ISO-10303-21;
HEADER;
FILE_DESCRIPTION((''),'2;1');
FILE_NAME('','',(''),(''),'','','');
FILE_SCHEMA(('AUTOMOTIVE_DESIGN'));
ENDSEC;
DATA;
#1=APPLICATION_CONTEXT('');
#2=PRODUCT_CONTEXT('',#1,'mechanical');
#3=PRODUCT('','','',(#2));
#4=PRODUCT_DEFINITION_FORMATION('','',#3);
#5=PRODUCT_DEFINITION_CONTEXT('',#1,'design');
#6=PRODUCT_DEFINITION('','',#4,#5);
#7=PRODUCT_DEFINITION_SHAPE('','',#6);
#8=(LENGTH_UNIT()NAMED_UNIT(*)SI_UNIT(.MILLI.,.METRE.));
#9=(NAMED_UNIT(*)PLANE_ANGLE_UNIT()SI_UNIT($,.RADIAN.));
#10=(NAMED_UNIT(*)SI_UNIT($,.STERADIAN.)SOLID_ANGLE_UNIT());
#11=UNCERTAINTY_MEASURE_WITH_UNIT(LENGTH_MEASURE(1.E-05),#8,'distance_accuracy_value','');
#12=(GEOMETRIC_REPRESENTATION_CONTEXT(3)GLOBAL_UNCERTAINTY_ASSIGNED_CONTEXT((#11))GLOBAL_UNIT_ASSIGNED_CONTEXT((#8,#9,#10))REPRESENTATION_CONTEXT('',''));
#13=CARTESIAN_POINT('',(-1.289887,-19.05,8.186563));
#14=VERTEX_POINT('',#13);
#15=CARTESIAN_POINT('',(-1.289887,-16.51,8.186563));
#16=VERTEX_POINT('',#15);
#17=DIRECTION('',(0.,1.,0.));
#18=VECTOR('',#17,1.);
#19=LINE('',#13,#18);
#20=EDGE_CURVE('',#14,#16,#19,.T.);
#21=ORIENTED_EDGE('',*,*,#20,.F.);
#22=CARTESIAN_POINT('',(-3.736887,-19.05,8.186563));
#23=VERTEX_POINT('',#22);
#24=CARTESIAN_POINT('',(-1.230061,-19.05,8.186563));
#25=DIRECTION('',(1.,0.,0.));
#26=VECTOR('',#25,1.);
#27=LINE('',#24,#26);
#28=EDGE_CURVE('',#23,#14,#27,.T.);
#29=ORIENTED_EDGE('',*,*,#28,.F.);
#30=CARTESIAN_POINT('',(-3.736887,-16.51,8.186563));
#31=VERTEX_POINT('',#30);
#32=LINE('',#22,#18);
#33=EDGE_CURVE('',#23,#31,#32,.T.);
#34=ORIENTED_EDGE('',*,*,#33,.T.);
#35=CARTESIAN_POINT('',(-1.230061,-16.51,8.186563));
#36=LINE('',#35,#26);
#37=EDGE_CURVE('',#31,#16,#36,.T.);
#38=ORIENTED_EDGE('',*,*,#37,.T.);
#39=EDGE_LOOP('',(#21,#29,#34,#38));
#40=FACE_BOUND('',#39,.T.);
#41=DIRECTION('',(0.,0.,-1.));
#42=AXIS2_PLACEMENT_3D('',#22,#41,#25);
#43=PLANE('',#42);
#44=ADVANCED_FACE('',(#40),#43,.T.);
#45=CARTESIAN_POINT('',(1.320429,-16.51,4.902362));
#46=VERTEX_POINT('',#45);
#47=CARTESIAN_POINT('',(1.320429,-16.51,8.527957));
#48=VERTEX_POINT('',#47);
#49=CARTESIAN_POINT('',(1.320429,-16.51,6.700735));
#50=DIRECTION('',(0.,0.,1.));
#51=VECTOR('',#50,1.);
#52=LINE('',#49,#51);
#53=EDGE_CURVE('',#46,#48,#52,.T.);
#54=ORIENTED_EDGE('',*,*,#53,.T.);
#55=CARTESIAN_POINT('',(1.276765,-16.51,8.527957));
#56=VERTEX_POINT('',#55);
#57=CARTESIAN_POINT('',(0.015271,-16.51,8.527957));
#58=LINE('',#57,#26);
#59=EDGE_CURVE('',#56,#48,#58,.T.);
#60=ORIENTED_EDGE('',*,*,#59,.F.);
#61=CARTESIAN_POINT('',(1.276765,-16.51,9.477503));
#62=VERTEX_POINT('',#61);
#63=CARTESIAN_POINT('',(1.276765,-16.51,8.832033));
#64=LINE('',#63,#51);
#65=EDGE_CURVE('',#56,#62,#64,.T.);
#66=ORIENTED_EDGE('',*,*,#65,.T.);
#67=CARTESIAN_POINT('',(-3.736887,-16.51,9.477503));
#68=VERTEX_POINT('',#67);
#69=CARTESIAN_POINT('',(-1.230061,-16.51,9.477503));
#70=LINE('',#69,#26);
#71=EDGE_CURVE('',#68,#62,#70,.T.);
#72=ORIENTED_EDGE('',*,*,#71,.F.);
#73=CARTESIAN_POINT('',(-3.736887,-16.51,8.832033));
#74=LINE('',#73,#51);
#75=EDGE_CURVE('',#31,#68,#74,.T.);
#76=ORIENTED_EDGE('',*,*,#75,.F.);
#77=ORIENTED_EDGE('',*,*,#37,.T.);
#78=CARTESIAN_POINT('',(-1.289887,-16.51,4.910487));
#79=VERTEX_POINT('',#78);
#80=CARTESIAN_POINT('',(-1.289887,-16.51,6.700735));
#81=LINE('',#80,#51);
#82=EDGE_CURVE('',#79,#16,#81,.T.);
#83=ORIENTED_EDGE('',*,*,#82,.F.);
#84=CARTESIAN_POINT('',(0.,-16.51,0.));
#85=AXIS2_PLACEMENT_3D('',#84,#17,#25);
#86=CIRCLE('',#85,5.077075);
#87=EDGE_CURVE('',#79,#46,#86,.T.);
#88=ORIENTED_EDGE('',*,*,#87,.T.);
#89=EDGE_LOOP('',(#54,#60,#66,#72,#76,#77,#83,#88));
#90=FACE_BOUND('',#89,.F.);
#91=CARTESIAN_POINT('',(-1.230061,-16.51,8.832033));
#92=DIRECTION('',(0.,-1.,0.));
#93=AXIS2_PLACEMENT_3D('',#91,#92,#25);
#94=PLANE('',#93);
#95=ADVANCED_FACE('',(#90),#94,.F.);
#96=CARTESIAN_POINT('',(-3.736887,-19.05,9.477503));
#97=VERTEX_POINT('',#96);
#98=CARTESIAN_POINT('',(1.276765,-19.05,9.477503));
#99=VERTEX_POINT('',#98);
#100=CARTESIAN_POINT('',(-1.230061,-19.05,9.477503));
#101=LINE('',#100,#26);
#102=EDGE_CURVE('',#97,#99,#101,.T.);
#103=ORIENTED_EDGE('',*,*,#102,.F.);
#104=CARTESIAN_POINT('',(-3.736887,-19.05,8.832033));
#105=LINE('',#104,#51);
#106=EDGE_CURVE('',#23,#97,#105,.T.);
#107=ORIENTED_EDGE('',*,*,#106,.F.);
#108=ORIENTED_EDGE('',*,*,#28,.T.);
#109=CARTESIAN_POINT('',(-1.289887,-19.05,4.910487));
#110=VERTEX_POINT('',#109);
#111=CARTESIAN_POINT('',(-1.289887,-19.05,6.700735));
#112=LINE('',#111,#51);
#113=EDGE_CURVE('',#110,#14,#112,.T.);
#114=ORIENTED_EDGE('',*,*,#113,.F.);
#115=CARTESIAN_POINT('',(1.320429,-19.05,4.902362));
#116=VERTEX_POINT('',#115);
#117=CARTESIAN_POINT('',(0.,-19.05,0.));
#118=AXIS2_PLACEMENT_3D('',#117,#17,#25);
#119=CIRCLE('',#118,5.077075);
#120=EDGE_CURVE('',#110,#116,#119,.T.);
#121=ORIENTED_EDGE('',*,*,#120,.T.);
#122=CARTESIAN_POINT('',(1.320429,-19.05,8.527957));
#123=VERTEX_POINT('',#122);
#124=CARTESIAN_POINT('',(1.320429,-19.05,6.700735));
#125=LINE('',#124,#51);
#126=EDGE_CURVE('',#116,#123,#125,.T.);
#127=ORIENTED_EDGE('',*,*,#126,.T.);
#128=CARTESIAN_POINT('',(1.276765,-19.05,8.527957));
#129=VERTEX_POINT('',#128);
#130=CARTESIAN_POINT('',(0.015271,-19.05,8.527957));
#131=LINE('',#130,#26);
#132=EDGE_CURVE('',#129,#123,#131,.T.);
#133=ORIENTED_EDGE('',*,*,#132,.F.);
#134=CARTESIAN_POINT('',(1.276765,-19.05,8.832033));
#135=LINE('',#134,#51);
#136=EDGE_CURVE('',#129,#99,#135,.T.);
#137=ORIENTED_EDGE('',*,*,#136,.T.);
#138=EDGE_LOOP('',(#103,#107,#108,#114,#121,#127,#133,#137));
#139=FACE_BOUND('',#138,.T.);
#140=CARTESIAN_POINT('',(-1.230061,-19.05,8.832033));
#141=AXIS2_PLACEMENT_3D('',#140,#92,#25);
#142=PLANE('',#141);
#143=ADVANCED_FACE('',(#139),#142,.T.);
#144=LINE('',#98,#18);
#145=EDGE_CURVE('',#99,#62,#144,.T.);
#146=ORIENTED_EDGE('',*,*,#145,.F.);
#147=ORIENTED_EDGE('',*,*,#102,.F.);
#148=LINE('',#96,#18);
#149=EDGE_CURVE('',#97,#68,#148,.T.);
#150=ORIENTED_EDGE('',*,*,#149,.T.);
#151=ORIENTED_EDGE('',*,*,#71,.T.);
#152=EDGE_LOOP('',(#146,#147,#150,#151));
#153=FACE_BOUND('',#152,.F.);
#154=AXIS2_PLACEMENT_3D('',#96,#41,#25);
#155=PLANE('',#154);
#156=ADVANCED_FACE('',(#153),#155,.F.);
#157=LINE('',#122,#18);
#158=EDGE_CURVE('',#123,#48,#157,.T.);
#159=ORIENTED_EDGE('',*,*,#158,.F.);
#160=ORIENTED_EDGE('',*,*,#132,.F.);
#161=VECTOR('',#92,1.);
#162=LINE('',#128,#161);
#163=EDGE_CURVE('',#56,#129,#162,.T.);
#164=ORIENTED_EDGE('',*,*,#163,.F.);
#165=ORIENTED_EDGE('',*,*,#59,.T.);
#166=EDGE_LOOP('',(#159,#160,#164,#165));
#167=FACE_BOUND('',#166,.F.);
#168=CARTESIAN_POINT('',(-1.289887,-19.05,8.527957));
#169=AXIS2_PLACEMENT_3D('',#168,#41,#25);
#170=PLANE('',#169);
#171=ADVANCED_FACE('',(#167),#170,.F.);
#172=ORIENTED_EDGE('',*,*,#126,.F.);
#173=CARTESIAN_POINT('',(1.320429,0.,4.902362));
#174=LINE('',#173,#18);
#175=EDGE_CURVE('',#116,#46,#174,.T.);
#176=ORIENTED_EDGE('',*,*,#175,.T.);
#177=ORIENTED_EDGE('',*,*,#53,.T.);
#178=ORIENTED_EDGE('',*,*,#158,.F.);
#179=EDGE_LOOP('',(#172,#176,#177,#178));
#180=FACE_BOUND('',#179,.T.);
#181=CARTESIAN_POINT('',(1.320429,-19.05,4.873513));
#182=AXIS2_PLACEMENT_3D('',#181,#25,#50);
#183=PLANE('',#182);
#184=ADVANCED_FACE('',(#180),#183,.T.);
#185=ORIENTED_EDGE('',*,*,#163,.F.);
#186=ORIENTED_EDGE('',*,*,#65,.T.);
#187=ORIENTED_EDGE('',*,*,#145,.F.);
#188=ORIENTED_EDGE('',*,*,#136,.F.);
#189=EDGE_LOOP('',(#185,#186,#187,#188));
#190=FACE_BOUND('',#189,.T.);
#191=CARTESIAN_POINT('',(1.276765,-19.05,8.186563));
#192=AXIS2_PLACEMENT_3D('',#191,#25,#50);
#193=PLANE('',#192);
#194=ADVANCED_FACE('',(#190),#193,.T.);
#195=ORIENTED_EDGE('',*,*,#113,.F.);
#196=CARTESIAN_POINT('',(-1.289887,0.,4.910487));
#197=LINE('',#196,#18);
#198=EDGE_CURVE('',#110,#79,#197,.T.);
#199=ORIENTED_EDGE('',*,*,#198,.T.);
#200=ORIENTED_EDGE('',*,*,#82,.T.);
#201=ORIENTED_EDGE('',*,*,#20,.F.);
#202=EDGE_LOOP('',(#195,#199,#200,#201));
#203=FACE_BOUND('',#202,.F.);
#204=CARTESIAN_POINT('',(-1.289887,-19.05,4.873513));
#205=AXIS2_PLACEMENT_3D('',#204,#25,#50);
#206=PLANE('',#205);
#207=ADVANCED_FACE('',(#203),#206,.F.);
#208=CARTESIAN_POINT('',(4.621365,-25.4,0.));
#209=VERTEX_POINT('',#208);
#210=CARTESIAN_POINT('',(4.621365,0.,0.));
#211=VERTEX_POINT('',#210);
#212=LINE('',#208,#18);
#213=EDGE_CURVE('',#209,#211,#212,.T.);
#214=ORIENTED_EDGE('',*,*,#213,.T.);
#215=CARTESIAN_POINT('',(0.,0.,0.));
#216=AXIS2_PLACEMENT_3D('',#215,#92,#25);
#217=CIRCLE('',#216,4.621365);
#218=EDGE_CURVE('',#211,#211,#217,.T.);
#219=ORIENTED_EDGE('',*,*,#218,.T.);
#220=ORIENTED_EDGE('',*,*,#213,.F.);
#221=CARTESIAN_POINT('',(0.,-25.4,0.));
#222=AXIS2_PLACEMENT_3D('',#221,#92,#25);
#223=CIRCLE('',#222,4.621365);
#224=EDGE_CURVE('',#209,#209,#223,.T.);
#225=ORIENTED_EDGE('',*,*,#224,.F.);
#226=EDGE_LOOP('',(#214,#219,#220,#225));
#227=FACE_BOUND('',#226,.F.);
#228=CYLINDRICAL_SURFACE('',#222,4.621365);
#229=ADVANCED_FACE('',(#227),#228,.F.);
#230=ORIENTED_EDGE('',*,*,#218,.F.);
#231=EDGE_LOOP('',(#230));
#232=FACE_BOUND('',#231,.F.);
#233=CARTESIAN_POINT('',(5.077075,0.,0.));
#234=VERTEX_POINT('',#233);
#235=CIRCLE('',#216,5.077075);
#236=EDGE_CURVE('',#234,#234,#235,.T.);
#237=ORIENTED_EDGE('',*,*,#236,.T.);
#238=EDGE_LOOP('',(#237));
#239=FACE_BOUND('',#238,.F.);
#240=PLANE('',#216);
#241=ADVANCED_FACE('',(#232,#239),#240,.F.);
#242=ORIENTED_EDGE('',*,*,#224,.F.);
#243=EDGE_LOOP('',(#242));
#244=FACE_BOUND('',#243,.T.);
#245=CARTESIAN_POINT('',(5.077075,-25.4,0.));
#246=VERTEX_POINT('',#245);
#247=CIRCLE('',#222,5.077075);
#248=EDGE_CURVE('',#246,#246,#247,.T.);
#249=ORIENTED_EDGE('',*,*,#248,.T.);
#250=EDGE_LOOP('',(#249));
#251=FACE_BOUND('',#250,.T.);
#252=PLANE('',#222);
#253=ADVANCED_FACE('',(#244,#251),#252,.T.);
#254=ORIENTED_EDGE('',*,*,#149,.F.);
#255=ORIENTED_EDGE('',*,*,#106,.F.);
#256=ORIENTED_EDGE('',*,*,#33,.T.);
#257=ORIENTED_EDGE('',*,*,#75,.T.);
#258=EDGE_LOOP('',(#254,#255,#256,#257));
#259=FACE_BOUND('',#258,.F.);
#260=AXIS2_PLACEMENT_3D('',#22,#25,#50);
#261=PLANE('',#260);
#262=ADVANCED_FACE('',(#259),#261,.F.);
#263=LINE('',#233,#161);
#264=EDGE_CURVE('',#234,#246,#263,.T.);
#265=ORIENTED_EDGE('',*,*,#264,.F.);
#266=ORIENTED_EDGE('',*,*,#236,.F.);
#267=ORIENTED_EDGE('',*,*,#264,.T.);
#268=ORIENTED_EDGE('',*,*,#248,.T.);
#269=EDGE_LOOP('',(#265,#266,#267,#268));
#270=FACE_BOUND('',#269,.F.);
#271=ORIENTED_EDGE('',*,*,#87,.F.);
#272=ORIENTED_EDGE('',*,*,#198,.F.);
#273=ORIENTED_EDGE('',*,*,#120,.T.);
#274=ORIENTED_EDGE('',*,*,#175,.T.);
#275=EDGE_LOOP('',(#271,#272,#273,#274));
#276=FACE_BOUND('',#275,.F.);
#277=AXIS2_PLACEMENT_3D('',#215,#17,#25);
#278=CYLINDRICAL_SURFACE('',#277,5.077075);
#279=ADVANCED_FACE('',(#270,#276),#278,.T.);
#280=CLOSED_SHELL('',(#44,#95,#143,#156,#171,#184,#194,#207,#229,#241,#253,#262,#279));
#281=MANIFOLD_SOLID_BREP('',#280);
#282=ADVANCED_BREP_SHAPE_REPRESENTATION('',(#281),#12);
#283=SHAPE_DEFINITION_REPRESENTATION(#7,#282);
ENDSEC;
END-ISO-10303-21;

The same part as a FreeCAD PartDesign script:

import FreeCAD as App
import Part
import Sketcher

V = App.Vector
Q = App.Units.Quantity


def add_polygon(sketch, points):
    """Adds a closed chain of lines whose ends are joined by coincident constraints."""
    first, n = sketch.GeometryCount, len(points)
    for a, b in zip(points, points[1:] + points[:1]):
        sketch.addGeometry(Part.LineSegment(App.Vector(*a, 0), App.Vector(*b, 0)), False)
    for i in range(n):
        sketch.addConstraint(Sketcher.Constraint("Coincident", first + i, 2, first + (i + 1) % n, 1))

doc = App.newDocument("Part")
body = doc.addObject("PartDesign::Body", "Body")

# Sketch on XZ plane
sketch1 = body.newObject("Sketcher::SketchObject", "Sketch")
sketch1.AttachmentSupport = (doc.getObject("XZ_Plane"), [""])
sketch1.MapMode = "FlatFace"
sketch1.addGeometry(Part.Circle(V(0, 0, 0), V(0, 0, 1), 5.077075), False)
sketch1.addConstraint(Sketcher.Constraint("Coincident", 0, 3, -1, 1))
sketch1.addConstraint(Sketcher.Constraint("Diameter", 0, 10.15415))
pad1 = body.newObject("PartDesign::Pad", "Pad")
pad1.Profile = sketch1
pad1.Length = Q("1 in")

# Sketch on XZ plane
sketch2 = body.newObject("Sketcher::SketchObject", "Sketch001")
sketch2.AttachmentSupport = (doc.getObject("XZ_Plane"), [""])
sketch2.MapMode = "FlatFace"
sketch2.AttachmentOffset = App.Placement(V(0, 0, 1 * 25.4), App.Rotation())
sketch2.addGeometry(Part.Circle(V(0, 0, 0), V(0, 0, 1), 4.621365), False)
sketch2.addConstraint(Sketcher.Constraint("Coincident", 0, 3, -1, 1))
sketch2.addConstraint(Sketcher.Constraint("Diameter", 0, 9.24273))
pocket1 = body.newObject("PartDesign::Pocket", "Pocket")
pocket1.Profile = sketch2
pocket1.Length = Q("1 in")

# Sketch on XZ plane
sketch3 = body.newObject("Sketcher::SketchObject", "Sketch002")
sketch3.AttachmentSupport = (doc.getObject("XZ_Plane"), [""])
sketch3.MapMode = "FlatFace"
sketch3.AttachmentOffset = App.Placement(V(0, 0, 0.75 * 25.4), App.Rotation())
add_polygon(sketch3, [(-1.289887, 8.527957), (-1.289887, 4.873513), (1.320429, 4.873513), (1.320429, 8.527957)])  # lines 0-3
sketch3.addConstraint(Sketcher.Constraint("Vertical", 0))
sketch3.addConstraint(Sketcher.Constraint("Horizontal", 1))
sketch3.addConstraint(Sketcher.Constraint("Vertical", 2))
sketch3.addConstraint(Sketcher.Constraint("Horizontal", 3))
sketch3.addConstraint(Sketcher.Constraint("DistanceX", 1, 1, 1, 2, 2.610316))
sketch3.addConstraint(Sketcher.Constraint("DistanceY", 0, 2, 0, 1, 3.654443))
sketch3.addConstraint(Sketcher.Constraint("DistanceX", -1, 1, 1, 2, 1.320429))
sketch3.addConstraint(Sketcher.Constraint("DistanceY", -1, 1, 0, 2, 4.873513))
pad2 = body.newObject("PartDesign::Pad", "Pad001")
pad2.Profile = sketch3
pad2.Length = Q("0.1 in")
pad2.Reversed = True

# Sketch on XZ plane
sketch4 = body.newObject("Sketcher::SketchObject", "Sketch003")
sketch4.AttachmentSupport = (doc.getObject("XZ_Plane"), [""])
sketch4.MapMode = "FlatFace"
sketch4.AttachmentOffset = App.Placement(V(0, 0, 0.75 * 25.4), App.Rotation())
add_polygon(sketch4, [(-3.736887, 9.477503), (-3.736887, 8.186563), (1.276765, 8.186563), (1.276765, 9.477503)])  # lines 0-3
sketch4.addConstraint(Sketcher.Constraint("Vertical", 0))
sketch4.addConstraint(Sketcher.Constraint("Horizontal", 1))
sketch4.addConstraint(Sketcher.Constraint("Vertical", 2))
sketch4.addConstraint(Sketcher.Constraint("Horizontal", 3))
sketch4.addConstraint(Sketcher.Constraint("DistanceY", 0, 2, 0, 1, 1.290941))
sketch4.addConstraint(Sketcher.Constraint("DistanceX", 1, 1, 1, 2, 5.013653))
sketch4.addConstraint(Sketcher.Constraint("DistanceX", 0, 2, -1, 1, 3.736887))
sketch4.addConstraint(Sketcher.Constraint("DistanceY", -1, 1, 0, 2, 8.186563))
pad3 = body.newObject("PartDesign::Pad", "Pad002")
pad3.Profile = sketch4
pad3.Length = Q("0.1 in")
pad3.Reversed = True

doc.recompute()
